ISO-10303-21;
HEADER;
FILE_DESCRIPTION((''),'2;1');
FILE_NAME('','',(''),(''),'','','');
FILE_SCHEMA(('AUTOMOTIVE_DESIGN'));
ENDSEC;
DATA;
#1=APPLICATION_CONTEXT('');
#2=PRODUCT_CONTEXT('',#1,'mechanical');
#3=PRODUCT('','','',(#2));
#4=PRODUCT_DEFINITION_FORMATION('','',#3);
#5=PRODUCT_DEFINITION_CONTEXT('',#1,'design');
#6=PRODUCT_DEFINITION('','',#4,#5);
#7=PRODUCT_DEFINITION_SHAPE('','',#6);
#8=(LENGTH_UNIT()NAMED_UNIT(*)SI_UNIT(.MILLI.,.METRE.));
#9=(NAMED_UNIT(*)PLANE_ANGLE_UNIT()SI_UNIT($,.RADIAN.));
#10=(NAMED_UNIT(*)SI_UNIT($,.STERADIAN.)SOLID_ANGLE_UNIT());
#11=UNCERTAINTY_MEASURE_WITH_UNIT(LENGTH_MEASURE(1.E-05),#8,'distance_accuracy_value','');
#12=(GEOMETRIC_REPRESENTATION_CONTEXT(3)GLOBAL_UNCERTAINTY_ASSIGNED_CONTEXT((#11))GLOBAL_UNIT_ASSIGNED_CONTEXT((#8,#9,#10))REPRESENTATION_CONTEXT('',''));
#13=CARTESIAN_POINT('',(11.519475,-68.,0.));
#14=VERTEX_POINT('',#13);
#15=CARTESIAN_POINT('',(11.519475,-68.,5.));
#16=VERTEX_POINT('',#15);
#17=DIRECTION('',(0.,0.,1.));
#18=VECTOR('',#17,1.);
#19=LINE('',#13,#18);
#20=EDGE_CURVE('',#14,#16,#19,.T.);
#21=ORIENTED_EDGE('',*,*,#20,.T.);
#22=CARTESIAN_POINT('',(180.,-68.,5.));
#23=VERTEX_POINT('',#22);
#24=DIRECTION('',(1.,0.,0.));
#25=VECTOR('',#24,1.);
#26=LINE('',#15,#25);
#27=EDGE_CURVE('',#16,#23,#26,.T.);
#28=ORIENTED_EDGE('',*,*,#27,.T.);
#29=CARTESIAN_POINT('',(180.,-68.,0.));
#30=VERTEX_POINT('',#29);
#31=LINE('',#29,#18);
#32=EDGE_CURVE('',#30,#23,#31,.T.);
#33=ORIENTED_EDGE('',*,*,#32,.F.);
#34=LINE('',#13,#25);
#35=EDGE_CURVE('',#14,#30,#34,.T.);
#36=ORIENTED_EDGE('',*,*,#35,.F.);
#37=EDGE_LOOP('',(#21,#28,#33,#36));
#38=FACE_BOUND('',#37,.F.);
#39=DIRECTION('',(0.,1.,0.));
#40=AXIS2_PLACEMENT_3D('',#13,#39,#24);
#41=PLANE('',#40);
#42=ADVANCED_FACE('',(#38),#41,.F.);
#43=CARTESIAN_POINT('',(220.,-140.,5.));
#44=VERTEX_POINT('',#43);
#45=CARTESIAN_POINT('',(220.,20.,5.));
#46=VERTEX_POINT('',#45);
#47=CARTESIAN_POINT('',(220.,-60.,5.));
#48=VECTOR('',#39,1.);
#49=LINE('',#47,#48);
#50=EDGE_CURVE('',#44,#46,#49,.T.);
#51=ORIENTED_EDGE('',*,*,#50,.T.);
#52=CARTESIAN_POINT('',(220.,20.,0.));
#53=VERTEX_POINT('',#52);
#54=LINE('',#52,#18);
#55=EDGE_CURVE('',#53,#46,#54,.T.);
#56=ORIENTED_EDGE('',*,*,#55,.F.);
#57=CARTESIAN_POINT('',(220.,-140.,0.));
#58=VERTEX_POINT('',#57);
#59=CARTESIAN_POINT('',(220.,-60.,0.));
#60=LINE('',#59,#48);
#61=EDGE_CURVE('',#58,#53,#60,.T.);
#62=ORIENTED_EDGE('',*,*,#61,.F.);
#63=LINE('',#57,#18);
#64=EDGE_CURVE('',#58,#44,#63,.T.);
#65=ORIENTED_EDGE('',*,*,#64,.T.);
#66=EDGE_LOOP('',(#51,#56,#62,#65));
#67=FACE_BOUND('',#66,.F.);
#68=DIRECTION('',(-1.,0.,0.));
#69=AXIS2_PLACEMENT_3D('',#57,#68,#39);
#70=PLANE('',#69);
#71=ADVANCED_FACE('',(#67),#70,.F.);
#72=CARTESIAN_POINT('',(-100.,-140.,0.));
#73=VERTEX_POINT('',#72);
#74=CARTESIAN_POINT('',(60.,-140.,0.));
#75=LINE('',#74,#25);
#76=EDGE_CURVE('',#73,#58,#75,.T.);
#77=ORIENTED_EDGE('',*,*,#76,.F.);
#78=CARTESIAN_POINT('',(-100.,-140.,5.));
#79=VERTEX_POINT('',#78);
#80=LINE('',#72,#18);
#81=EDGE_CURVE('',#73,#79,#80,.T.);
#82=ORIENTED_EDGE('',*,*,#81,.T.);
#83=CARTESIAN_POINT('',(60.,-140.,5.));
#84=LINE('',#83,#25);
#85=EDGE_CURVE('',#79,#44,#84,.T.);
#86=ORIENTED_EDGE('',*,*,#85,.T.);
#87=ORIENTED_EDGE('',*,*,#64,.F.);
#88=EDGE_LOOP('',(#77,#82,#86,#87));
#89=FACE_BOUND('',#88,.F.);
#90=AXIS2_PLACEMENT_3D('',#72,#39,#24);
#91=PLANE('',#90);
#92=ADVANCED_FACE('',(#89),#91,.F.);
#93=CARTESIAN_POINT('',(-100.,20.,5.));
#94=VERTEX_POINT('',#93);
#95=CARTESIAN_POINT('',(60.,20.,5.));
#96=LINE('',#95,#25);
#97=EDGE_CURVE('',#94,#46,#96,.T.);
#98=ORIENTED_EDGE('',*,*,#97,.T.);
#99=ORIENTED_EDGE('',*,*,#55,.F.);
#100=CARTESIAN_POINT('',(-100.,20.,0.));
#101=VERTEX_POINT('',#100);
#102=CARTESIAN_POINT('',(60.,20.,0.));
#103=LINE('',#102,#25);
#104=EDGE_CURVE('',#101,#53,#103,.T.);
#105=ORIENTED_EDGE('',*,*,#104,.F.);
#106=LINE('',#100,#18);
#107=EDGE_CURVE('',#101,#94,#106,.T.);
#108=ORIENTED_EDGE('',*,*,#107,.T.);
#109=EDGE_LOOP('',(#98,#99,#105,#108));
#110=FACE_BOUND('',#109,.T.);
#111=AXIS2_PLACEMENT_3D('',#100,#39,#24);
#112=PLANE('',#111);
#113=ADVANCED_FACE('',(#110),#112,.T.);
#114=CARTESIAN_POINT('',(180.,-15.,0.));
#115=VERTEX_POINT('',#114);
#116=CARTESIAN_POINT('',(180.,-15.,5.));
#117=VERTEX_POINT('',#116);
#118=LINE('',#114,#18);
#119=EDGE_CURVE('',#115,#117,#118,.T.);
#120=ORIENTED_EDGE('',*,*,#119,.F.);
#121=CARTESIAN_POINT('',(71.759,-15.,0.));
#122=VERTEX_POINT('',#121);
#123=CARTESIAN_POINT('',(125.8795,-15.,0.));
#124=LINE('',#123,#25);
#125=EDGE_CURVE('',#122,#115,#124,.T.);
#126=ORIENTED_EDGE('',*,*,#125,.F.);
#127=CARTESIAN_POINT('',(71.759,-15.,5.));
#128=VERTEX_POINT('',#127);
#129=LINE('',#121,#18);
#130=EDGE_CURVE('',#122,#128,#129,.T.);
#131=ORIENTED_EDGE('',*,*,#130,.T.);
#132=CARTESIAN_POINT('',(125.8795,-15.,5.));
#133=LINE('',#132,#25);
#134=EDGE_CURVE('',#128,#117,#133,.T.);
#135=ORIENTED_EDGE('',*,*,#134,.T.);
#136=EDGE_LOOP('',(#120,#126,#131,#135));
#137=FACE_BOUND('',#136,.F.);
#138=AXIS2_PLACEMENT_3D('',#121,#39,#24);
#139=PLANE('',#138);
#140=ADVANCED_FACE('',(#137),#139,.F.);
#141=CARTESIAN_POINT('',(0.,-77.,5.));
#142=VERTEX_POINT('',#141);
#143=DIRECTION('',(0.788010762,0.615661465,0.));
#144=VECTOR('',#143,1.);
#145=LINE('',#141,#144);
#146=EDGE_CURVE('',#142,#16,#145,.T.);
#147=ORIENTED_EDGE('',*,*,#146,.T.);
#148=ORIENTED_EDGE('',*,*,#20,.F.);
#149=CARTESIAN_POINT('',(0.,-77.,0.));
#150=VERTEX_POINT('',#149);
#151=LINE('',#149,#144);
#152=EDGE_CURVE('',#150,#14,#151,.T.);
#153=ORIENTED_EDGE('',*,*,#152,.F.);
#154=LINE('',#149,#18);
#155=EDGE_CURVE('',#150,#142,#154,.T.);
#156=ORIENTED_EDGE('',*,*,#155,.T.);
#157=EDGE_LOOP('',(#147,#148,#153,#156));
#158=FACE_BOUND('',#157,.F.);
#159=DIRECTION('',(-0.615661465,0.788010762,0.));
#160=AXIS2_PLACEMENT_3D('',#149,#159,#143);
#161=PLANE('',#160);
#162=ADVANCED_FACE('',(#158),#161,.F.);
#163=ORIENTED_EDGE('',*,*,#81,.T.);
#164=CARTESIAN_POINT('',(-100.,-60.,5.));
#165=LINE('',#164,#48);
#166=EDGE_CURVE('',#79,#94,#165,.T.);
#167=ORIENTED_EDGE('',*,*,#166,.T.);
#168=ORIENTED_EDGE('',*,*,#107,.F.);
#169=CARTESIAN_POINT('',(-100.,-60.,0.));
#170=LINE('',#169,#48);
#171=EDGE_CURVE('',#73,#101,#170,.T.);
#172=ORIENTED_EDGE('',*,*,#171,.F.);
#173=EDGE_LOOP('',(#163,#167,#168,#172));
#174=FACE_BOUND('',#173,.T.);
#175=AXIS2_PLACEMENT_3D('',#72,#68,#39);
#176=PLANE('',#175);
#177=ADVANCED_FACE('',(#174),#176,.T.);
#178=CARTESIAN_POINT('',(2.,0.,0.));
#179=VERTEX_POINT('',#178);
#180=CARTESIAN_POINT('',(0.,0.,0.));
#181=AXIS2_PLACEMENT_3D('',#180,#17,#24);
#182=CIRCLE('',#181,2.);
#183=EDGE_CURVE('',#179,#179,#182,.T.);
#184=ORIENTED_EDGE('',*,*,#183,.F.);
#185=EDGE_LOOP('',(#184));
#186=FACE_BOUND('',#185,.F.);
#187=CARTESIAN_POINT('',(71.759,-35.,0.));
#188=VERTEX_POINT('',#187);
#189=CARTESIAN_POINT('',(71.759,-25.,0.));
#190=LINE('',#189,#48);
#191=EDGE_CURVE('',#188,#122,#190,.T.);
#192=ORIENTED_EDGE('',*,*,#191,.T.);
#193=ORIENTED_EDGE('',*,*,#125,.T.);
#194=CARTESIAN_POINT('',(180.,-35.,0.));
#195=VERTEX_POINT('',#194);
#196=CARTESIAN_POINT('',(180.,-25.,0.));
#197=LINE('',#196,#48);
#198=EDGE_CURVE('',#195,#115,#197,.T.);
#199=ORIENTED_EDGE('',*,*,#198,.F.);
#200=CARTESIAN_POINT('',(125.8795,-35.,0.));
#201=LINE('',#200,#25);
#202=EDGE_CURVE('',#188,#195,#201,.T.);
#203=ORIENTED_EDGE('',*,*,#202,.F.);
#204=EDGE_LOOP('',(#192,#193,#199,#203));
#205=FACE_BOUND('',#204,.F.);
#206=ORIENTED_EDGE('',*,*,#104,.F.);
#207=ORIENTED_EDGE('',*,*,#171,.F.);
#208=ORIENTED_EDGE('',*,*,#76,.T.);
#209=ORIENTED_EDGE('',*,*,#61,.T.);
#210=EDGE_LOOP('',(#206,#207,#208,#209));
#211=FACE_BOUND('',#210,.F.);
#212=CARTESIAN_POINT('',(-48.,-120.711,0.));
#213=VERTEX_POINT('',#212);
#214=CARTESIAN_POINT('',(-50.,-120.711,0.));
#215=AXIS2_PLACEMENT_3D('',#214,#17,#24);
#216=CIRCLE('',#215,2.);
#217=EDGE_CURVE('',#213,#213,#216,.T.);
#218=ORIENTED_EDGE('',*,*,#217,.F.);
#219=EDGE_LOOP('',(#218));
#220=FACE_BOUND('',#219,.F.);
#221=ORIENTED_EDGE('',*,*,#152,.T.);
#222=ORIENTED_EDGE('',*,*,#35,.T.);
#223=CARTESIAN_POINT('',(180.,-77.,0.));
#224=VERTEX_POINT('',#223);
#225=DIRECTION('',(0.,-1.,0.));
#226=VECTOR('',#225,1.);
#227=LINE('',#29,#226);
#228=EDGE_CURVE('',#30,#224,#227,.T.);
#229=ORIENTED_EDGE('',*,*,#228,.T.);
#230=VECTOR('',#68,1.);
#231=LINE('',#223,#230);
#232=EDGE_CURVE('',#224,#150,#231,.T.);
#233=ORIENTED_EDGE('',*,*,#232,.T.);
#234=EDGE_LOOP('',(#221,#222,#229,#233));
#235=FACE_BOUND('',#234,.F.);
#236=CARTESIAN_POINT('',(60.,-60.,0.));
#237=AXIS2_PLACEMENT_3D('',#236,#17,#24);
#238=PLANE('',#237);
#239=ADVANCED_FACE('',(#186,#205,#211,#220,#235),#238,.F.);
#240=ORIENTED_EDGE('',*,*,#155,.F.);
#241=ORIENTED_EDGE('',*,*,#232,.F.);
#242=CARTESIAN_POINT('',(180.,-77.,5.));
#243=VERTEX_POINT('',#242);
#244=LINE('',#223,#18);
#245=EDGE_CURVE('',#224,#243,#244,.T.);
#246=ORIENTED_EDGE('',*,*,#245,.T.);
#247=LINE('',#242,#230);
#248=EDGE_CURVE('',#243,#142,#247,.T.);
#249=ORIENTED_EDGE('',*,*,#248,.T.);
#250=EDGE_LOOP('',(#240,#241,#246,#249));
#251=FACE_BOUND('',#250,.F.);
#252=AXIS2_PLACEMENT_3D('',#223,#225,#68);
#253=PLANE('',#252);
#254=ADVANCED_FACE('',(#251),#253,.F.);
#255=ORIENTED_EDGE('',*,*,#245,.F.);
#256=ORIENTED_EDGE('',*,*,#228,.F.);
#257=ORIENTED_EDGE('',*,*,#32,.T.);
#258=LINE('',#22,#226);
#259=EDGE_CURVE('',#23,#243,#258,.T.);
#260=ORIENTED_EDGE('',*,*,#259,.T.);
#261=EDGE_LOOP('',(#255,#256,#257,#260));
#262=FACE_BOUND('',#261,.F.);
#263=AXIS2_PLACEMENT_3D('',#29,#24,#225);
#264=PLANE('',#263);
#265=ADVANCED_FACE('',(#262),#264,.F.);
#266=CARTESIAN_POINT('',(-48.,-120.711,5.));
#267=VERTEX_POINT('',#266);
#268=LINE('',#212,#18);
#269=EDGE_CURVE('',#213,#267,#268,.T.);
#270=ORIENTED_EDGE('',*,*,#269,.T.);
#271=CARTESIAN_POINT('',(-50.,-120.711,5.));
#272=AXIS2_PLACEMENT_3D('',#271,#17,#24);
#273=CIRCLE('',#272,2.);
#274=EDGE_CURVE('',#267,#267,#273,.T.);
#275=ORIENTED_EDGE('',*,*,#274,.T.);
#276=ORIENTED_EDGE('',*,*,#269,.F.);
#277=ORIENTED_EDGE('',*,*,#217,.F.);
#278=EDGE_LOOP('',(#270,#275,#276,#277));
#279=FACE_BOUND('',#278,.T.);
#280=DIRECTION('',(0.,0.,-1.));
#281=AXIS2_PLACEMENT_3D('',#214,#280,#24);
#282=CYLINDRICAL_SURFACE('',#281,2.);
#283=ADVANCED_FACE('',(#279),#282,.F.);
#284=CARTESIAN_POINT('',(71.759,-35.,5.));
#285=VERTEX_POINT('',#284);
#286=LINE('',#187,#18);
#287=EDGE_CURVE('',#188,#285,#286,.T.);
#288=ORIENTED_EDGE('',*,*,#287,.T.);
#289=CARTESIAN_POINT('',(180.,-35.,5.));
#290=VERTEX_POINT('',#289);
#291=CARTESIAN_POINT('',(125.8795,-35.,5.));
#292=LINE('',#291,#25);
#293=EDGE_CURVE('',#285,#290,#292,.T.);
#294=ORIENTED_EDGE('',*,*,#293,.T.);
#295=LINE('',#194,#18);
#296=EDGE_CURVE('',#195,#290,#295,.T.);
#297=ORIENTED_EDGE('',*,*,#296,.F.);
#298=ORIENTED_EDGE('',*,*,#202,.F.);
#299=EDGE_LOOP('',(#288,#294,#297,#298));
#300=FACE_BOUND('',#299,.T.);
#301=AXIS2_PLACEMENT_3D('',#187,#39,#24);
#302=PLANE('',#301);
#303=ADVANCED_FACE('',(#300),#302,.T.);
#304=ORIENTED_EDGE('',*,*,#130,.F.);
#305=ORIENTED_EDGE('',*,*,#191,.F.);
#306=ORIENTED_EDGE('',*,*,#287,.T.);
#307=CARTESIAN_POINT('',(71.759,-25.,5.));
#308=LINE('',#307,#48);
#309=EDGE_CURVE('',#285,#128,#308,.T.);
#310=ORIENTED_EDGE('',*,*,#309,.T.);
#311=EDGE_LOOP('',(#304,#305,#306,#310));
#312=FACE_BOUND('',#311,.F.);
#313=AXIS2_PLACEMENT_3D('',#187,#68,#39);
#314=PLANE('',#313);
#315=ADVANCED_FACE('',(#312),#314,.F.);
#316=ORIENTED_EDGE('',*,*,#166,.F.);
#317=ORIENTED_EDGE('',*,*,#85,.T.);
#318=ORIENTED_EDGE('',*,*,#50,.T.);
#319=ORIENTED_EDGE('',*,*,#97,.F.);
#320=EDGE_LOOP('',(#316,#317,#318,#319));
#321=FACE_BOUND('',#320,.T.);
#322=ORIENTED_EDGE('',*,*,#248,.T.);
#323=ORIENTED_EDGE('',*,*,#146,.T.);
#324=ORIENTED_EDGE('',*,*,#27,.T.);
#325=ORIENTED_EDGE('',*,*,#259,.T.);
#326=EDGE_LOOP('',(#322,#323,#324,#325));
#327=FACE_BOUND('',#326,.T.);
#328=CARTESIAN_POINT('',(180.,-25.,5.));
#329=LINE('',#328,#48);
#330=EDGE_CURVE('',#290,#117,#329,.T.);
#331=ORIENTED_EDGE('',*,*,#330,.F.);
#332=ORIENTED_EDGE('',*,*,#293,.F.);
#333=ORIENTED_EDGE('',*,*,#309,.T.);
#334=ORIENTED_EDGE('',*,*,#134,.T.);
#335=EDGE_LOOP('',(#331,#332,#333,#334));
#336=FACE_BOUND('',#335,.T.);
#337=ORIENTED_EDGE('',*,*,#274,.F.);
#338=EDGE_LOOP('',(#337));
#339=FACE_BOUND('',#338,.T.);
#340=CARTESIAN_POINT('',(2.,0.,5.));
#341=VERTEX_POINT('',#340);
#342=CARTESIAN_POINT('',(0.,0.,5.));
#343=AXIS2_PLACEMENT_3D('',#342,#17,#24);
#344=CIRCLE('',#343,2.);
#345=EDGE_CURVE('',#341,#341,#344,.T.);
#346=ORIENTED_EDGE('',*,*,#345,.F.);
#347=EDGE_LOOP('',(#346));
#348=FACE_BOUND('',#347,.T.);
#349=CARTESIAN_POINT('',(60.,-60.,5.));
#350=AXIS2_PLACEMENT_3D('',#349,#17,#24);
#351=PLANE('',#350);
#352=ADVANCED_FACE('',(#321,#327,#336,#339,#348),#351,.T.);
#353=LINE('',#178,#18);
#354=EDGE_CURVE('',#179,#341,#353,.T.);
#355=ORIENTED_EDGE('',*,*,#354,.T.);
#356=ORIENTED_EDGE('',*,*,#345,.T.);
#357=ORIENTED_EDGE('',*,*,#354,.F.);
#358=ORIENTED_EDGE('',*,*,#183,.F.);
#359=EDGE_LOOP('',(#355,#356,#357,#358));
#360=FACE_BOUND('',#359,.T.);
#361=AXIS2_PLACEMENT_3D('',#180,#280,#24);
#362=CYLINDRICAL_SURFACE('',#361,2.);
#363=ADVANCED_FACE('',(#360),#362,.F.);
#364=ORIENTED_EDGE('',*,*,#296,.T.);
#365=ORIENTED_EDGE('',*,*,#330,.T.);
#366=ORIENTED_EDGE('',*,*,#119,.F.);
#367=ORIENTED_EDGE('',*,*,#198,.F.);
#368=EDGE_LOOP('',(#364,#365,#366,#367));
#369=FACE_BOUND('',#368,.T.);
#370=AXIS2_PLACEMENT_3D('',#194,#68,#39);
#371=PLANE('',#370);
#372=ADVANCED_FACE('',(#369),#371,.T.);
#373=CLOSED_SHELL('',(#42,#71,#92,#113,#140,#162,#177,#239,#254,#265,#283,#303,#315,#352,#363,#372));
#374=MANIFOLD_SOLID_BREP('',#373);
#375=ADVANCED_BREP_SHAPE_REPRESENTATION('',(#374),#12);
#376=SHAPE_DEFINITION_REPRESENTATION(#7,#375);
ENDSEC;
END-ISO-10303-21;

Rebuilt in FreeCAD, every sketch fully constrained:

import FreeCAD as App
import Part
import Sketcher
Q = App.Units.Quantity


def add_polygon(sketch, points):
    """Adds a closed chain of lines whose ends are joined by coincident constraints."""
    first, n = sketch.GeometryCount, len(points)
    for a, b in zip(points, points[1:] + points[:1]):
        sketch.addGeometry(Part.LineSegment(App.Vector(*a, 0), App.Vector(*b, 0)), False)
    for i in range(n):
        sketch.addConstraint(Sketcher.Constraint("Coincident", first + i, 2, first + (i + 1) % n, 1))

doc = App.newDocument("Part")
body = doc.addObject("PartDesign::Body", "Body")

# Sketch on XY plane
sketch1 = body.newObject("Sketcher::SketchObject", "Sketch")
sketch1.AttachmentSupport = (doc.getObject("XY_Plane"), [""])
sketch1.MapMode = "FlatFace"
add_polygon(sketch1, [(-100, 20), (-100, -140), (220, -140), (220, 20)])  # lines 0-3
sketch1.addGeometry(Part.Circle(App.Vector(-50, -120.7, 0), App.Vector(0, 0, 1), 2), False)  # 4
add_polygon(sketch1, [(180, -68), (180, -77), (0, -77), (11.5, -68)])  # lines 5-8
sketch1.addGeometry(Part.Circle(App.Vector(0, 0, 0), App.Vector(0, 0, 1), 2), False)  # 9
add_polygon(sketch1, [(180, -35), (71.8, -35), (71.8, -15), (180, -15)])  # lines 10-13
sketch1.addConstraint([
    Sketcher.Constraint("Vertical", 0),
    Sketcher.Constraint("Horizontal", 1),
    Sketcher.Constraint("Vertical", 2),
    Sketcher.Constraint("Horizontal", 3),
    Sketcher.Constraint("Vertical", 5),
    Sketcher.Constraint("Horizontal", 6),
    Sketcher.Constraint("Horizontal", 8),
    Sketcher.Constraint("Horizontal", 10),
    Sketcher.Constraint("Vertical", 11),
    Sketcher.Constraint("Horizontal", 12),
    Sketcher.Constraint("Vertical", 13),
    Sketcher.Constraint("Coincident", 9, 3, -1, 1),
    Sketcher.Constraint("Equal", 4, 9),
    Sketcher.Constraint("PointOnObject", 6, 2, -2),
    Sketcher.Constraint("Vertical", 8, 2, 12, 2),
    Sketcher.Constraint("Diameter", 4, Q("4 mm")),
    Sketcher.Constraint("DistanceX", 1, 1, 1, 2, Q("320 mm")),
    Sketcher.Constraint("DistanceX", 6, 2, 6, 1, Q("180 mm")),
    Sketcher.Constraint("DistanceY", 0, 2, 0, 1, Q("160 mm")),
    Sketcher.Constraint("DistanceY", 5, 2, 5, 1, Q("9 mm")),
    Sketcher.Constraint("DistanceY", 11, 1, 11, 2, Q("20 mm")),
    Sketcher.Constraint("Angle", 7, Q("37.999999 deg")),
    Sketcher.Constraint("DistanceX", 4, 3, -1, 1, Q("50 mm")),
    Sketcher.Constraint("DistanceX", 0, 2, -1, 1, Q("100 mm")),
    Sketcher.Constraint("DistanceY", 0, 2, -1, 1, Q("140 mm")),
    Sketcher.Constraint("DistanceY", 5, 2, -1, 1, Q("77 mm")),
    Sketcher.Constraint("DistanceY", 10, 2, -1, 1, Q("35 mm")),
    Sketcher.Constraint("DistanceX", 10, 2, 10, 1, Q("108.241 mm")),
    Sketcher.Constraint("DistanceY", 4, 3, -1, 1, Q("120.711 mm")),
])
pad1 = body.newObject("PartDesign::Pad", "Pad")
pad1.Profile = sketch1
pad1.Length = 5

doc.recompute()
